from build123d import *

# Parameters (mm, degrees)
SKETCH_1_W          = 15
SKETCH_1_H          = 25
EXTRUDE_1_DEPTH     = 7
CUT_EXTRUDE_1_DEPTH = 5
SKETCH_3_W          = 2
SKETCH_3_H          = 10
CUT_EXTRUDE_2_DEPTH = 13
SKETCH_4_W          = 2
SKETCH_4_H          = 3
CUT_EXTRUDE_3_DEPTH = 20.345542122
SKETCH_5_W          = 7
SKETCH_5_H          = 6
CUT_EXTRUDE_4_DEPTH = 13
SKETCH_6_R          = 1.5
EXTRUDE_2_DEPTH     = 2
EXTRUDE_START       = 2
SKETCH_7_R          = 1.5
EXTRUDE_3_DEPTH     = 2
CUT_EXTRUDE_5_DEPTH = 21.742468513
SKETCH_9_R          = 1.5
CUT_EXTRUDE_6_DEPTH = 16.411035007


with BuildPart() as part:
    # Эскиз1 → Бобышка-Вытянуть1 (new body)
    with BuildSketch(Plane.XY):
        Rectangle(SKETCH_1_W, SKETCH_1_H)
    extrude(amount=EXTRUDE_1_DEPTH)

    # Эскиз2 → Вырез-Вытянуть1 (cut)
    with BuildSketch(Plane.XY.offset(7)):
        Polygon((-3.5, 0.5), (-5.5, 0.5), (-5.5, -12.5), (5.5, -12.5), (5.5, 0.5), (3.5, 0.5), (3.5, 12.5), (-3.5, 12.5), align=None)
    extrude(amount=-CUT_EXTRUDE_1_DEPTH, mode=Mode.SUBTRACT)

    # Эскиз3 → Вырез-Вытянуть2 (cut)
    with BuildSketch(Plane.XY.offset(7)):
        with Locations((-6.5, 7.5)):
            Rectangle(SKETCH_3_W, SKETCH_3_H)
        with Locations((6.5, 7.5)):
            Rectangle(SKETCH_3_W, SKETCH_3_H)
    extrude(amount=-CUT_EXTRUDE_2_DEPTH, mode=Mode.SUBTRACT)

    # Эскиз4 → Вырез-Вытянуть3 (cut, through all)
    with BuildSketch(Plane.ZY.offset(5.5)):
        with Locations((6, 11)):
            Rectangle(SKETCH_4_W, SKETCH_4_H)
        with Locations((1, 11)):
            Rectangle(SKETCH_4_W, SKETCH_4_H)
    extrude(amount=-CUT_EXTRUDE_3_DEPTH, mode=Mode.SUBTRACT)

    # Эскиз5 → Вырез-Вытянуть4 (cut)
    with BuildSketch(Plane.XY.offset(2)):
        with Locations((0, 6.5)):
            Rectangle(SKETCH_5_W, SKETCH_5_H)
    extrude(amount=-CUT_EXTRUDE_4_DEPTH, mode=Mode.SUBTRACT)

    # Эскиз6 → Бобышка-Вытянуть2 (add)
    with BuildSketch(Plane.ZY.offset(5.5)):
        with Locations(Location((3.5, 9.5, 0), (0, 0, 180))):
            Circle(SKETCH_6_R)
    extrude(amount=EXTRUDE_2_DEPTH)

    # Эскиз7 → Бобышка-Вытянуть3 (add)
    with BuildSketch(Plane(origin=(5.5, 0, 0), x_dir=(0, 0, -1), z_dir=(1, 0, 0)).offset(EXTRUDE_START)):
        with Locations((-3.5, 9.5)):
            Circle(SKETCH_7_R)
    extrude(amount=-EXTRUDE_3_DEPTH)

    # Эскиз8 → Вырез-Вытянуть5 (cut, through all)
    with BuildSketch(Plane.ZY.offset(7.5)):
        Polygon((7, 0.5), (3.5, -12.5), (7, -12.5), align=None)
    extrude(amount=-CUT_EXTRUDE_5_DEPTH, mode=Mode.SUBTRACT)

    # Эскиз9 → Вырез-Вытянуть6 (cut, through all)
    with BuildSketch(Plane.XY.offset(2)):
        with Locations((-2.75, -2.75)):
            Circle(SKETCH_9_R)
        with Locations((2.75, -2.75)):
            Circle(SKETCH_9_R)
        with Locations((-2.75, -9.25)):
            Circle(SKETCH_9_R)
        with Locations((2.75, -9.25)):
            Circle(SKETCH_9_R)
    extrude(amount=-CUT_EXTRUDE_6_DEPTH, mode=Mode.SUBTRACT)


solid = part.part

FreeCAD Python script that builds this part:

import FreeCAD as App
import Part
import Sketcher
from FreeCAD import Vector
Q = App.Units.Quantity


def add_polygon(sketch, points):
    """Adds a closed chain of lines whose ends are joined by coincident constraints."""
    first, n = sketch.GeometryCount, len(points)
    for a, b in zip(points, points[1:] + points[:1]):
        sketch.addGeometry(Part.LineSegment(App.Vector(*a, 0), App.Vector(*b, 0)), False)
    for i in range(n):
        sketch.addConstraint(Sketcher.Constraint("Coincident", first + i, 2, first + (i + 1) % n, 1))

doc = App.newDocument("Part")
body = doc.addObject("PartDesign::Body", "Body")

# Sketch on XY plane
sketch1 = doc.addObject("Sketcher::SketchObject", "Sketch")
body.addObject(sketch1)
sketch1.AttachmentSupport = (doc.XY_Plane, [""])
sketch1.MapMode = "FlatFace"
add_polygon(sketch1, [(-7.5, 12.5), (-7.5, -12.5), (7.5, -12.5), (7.5, 12.5)])  # lines 0-3
sketch1.addConstraint([
    Sketcher.Constraint("Vertical", 0),
    Sketcher.Constraint("Horizontal", 1),
    Sketcher.Constraint("Vertical", 2),
    Sketcher.Constraint("Horizontal", 3),
    Sketcher.Constraint("Symmetric", 0, 2, 2, 2, -1, 1),
    Sketcher.Constraint("DistanceX", 1, 1, 1, 2, Q("15 mm")),
    Sketcher.Constraint("DistanceY", 0, 2, 0, 1, Q("25 mm")),
])
pad1 = doc.addObject("PartDesign::Pad", "Pad")
body.addObject(pad1)
pad1.Profile = sketch1
pad1.Length = 7

# Sketch on XY plane
sketch2 = doc.addObject("Sketcher::SketchObject", "Sketch001")
body.addObject(sketch2)
sketch2.AttachmentSupport = (doc.XY_Plane, [""])
sketch2.MapMode = "FlatFace"
sketch2.AttachmentOffset = App.Placement(Vector(0, 0, 7), App.Rotation())
add_polygon(sketch2, [(-3.5, 0.5), (-5.5, 0.5), (-5.5, -12.5), (5.5, -12.5), (5.5, 0.5), (3.5, 0.5), (3.5, 12.5), (-3.5, 12.5)])  # lines 0-7
sketch2.addConstraint([
    Sketcher.Constraint("Horizontal", 0),
    Sketcher.Constraint("Vertical", 1),
    Sketcher.Constraint("Horizontal", 2),
    Sketcher.Constraint("Vertical", 3),
    Sketcher.Constraint("Horizontal", 4),
    Sketcher.Constraint("Vertical", 5),
    Sketcher.Constraint("Horizontal", 6),
    Sketcher.Constraint("Vertical", 7),
    Sketcher.Constraint("Symmetric", 0, 2, 3, 2, -2),
    Sketcher.Constraint("Equal", 0, 4),
    Sketcher.Constraint("DistanceX", 0, 2, 0, 1, Q("2 mm")),
    Sketcher.Constraint("DistanceX", 2, 1, 2, 2, Q("11 mm")),
    Sketcher.Constraint("DistanceY", 1, 2, 1, 1, Q("13 mm")),
    Sketcher.Constraint("DistanceY", 5, 1, 5, 2, Q("12 mm")),
    Sketcher.Constraint("DistanceY", -1, 1, 0, 2, Q("0.5 mm")),
])
pocket1 = doc.addObject("PartDesign::Pocket", "Pocket")
body.addObject(pocket1)
pocket1.Profile = sketch2
pocket1.Length = 5

# Sketch on XY plane
sketch3 = doc.addObject("Sketcher::SketchObject", "Sketch002")
body.addObject(sketch3)
sketch3.AttachmentSupport = (doc.XY_Plane, [""])
sketch3.MapMode = "FlatFace"
sketch3.AttachmentOffset = App.Placement(Vector(0, 0, 7), App.Rotation())
add_polygon(sketch3, [(-7.5, 12.5), (-7.5, 2.5), (-5.5, 2.5), (-5.5, 12.5)])  # lines 0-3
add_polygon(sketch3, [(5.5, 12.5), (5.5, 2.5), (7.5, 2.5), (7.5, 12.5)])  # lines 4-7
sketch3.addConstraint([
    Sketcher.Constraint("Vertical", 0),
    Sketcher.Constraint("Horizontal", 1),
    Sketcher.Constraint("Vertical", 2),
    Sketcher.Constraint("Horizontal", 3),
    Sketcher.Constraint("Vertical", 4),
    Sketcher.Constraint("Horizontal", 5),
    Sketcher.Constraint("Vertical", 6),
    Sketcher.Constraint("Horizontal", 7),
    Sketcher.Constraint("Symmetric", 1, 2, 4, 2, -2),
    Sketcher.Constraint("Symmetric", 3, 2, 6, 2, -2),
    Sketcher.Constraint("DistanceX", 1, 1, 1, 2, Q("2 mm")),
    Sketcher.Constraint("DistanceY", 0, 2, 0, 1, Q("10 mm")),
    Sketcher.Constraint("DistanceX", 1, 2, 4, 2, Q("11 mm")),
    Sketcher.Constraint("DistanceY", -1, 1, 0, 2, Q("2.5 mm")),
])
pocket2 = doc.addObject("PartDesign::Pocket", "Pocket001")
body.addObject(pocket2)
pocket2.Profile = sketch3
pocket2.Length = 13

# Sketch on YZ plane
sketch4 = doc.addObject("Sketcher::SketchObject", "Sketch003")
body.addObject(sketch4)
sketch4.AttachmentSupport = (doc.YZ_Plane, [""])
sketch4.MapMode = "FlatFace"
sketch4.AttachmentOffset = App.Placement(Vector(0, 0, -5.5), App.Rotation())
add_polygon(sketch4, [(12.5, 5), (9.5, 5), (9.5, 7), (12.5, 7)])  # lines 0-3
add_polygon(sketch4, [(12.5, 0), (9.5, 0), (9.5, 2), (12.5, 2)])  # lines 4-7
sketch4.addConstraint([
    Sketcher.Constraint("Horizontal", 0),
    Sketcher.Constraint("Vertical", 1),
    Sketcher.Constraint("Horizontal", 2),
    Sketcher.Constraint("Vertical", 3),
    Sketcher.Constraint("Horizontal", 4),
    Sketcher.Constraint("Vertical", 5),
    Sketcher.Constraint("Horizontal", 6),
    Sketcher.Constraint("Vertical", 7),
    Sketcher.Constraint("PointOnObject", 4, 2, -1),
    Sketcher.Constraint("Vertical", 1, 2, 4, 2),
    Sketcher.Constraint("Vertical", 3, 2, 6, 2),
    Sketcher.Constraint("Equal", 3, 5),
    Sketcher.Constraint("DistanceX", 0, 2, 0, 1, Q("3 mm")),
    Sketcher.Constraint("DistanceY", 1, 1, 1, 2, Q("2 mm")),
    Sketcher.Constraint("DistanceY", -1, 1, 0, 2, Q("5 mm")),
    Sketcher.Constraint("DistanceX", -1, 1, 0, 2, Q("9.5 mm")),
])
pocket3 = doc.addObject("PartDesign::Pocket", "Pocket002")
body.addObject(pocket3)
pocket3.Profile = sketch4
pocket3.Type = "ThroughAll"
pocket3.Reversed = True

# Sketch on XY plane
sketch5 = doc.addObject("Sketcher::SketchObject", "Sketch004")
body.addObject(sketch5)
sketch5.AttachmentSupport = (doc.XY_Plane, [""])
sketch5.MapMode = "FlatFace"
sketch5.AttachmentOffset = App.Placement(Vector(0, 0, 2), App.Rotation())
add_polygon(sketch5, [(-3.5, 9.5), (-3.5, 3.5), (3.5, 3.5), (3.5, 9.5)])  # lines 0-3
sketch5.addConstraint([
    Sketcher.Constraint("Vertical", 0),
    Sketcher.Constraint("Horizontal", 1),
    Sketcher.Constraint("Vertical", 2),
    Sketcher.Constraint("Horizontal", 3),
    Sketcher.Constraint("DistanceX", 1, 1, 1, 2, Q("7 mm")),
    Sketcher.Constraint("DistanceY", 0, 2, 0, 1, Q("6 mm")),
    Sketcher.Constraint("DistanceX", 0, 2, -1, 1, Q("3.5 mm")),
    Sketcher.Constraint("DistanceY", -1, 1, 0, 2, Q("3.5 mm")),
])
pocket4 = doc.addObject("PartDesign::Pocket", "Pocket003")
body.addObject(pocket4)
pocket4.Profile = sketch5
pocket4.Length = 13

# Sketch on YZ plane
sketch6 = doc.addObject("Sketcher::SketchObject", "Sketch005")
body.addObject(sketch6)
sketch6.AttachmentSupport = (doc.YZ_Plane, [""])
sketch6.MapMode = "FlatFace"
sketch6.AttachmentOffset = App.Placement(Vector(0, 0, -5.5), App.Rotation())
sketch6.addGeometry(Part.Circle(Vector(9.5, 3.5, 0), Vector(0, 0, 1), 1.5), False)
sketch6.addConstraint([
    Sketcher.Constraint("Diameter", 0, Q("3 mm")),
    Sketcher.Constraint("DistanceX", -1, 1, 0, 3, Q("9.5 mm")),
    Sketcher.Constraint("DistanceY", -1, 1, 0, 3, Q("3.5 mm")),
])
pad2 = doc.addObject("PartDesign::Pad", "Pad001")
body.addObject(pad2)
pad2.Profile = sketch6
pad2.Length = 2
pad2.Reversed = True

# Sketch on YZ plane
sketch7 = doc.addObject("Sketcher::SketchObject", "Sketch006")
body.addObject(sketch7)
sketch7.AttachmentSupport = (doc.YZ_Plane, [""])
sketch7.MapMode = "FlatFace"
sketch7.AttachmentOffset = App.Placement(Vector(0, 0, 7.5), App.Rotation())
sketch7.addGeometry(Part.Circle(Vector(9.5, 3.5, 0), Vector(0, 0, 1), 1.5), False)
sketch7.addConstraint([
    Sketcher.Constraint("Diameter", 0, Q("3 mm")),
    Sketcher.Constraint("DistanceX", -1, 1, 0, 3, Q("9.5 mm")),
    Sketcher.Constraint("DistanceY", -1, 1, 0, 3, Q("3.5 mm")),
])
pad3 = doc.addObject("PartDesign::Pad", "Pad002")
body.addObject(pad3)
pad3.Profile = sketch7
pad3.Length = 2
pad3.Reversed = True

# Sketch on YZ plane
sketch8 = doc.addObject("Sketcher::SketchObject", "Sketch007")
body.addObject(sketch8)
sketch8.AttachmentSupport = (doc.YZ_Plane, [""])
sketch8.MapMode = "FlatFace"
sketch8.AttachmentOffset = App.Placement(Vector(0, 0, -7.5), App.Rotation())
add_polygon(sketch8, [(0.5, 7), (-12.5, 3.5), (-12.5, 7)])  # lines 0-2
sketch8.addConstraint([
    Sketcher.Constraint("Vertical", 1),
    Sketcher.Constraint("Horizontal", 2),
    Sketcher.Constraint("DistanceX", 2, 1, 2, 2, Q("13 mm")),
    Sketcher.Constraint("DistanceY", 1, 1, 1, 2, Q("3.5 mm")),
    Sketcher.Constraint("DistanceY", -1, 1, 1, 2, Q("7 mm")),
    Sketcher.Constraint("DistanceX", 0, 2, -1, 1, Q("12.5 mm")),
])
pocket5 = doc.addObject("PartDesign::Pocket", "Pocket004")
body.addObject(pocket5)
pocket5.Profile = sketch8
pocket5.Type = "ThroughAll"
pocket5.Reversed = True

# Sketch on XY plane
sketch9 = doc.addObject("Sketcher::SketchObject", "Sketch008")
body.addObject(sketch9)
sketch9.AttachmentSupport = (doc.XY_Plane, [""])
sketch9.MapMode = "FlatFace"
sketch9.AttachmentOffset = App.Placement(Vector(0, 0, 2), App.Rotation())
sketch9.addGeometry([
    Part.Circle(Vector(-2.75, -2.75, 0), Vector(0, 0, 1), 1.5),
    Part.Circle(Vector(2.75, -2.75, 0), Vector(0, 0, 1), 1.5),
    Part.Circle(Vector(-2.75, -9.25, 0), Vector(0, 0, 1), 1.5),
    Part.Circle(Vector(2.75, -9.25, 0), Vector(0, 0, 1), 1.5),
], False)
sketch9.addConstraint([
    Sketcher.Constraint("Equal", 0, 1),
    Sketcher.Constraint("Equal", 1, 2),
    Sketcher.Constraint("Equal", 2, 3),
    Sketcher.Constraint("Symmetric", 0, 3, 1, 3, -2),
    Sketcher.Constraint("Symmetric", 2, 3, 3, 3, -2),
    Sketcher.Constraint("Vertical", 0, 3, 2, 3),
    Sketcher.Constraint("Diameter", 0, Q("3 mm")),
    Sketcher.Constraint("DistanceX", 0, 3, 1, 3, Q("5.5 mm")),
    Sketcher.Constraint("DistanceY", 2, 3, 0, 3, Q("6.5 mm")),
    Sketcher.Constraint("DistanceY", 0, 3, -1, 1, Q("2.75 mm")),
])
pocket6 = doc.addObject("PartDesign::Pocket", "Pocket005")
body.addObject(pocket6)
pocket6.Profile = sketch9
pocket6.Type = "ThroughAll"

doc.recompute()
